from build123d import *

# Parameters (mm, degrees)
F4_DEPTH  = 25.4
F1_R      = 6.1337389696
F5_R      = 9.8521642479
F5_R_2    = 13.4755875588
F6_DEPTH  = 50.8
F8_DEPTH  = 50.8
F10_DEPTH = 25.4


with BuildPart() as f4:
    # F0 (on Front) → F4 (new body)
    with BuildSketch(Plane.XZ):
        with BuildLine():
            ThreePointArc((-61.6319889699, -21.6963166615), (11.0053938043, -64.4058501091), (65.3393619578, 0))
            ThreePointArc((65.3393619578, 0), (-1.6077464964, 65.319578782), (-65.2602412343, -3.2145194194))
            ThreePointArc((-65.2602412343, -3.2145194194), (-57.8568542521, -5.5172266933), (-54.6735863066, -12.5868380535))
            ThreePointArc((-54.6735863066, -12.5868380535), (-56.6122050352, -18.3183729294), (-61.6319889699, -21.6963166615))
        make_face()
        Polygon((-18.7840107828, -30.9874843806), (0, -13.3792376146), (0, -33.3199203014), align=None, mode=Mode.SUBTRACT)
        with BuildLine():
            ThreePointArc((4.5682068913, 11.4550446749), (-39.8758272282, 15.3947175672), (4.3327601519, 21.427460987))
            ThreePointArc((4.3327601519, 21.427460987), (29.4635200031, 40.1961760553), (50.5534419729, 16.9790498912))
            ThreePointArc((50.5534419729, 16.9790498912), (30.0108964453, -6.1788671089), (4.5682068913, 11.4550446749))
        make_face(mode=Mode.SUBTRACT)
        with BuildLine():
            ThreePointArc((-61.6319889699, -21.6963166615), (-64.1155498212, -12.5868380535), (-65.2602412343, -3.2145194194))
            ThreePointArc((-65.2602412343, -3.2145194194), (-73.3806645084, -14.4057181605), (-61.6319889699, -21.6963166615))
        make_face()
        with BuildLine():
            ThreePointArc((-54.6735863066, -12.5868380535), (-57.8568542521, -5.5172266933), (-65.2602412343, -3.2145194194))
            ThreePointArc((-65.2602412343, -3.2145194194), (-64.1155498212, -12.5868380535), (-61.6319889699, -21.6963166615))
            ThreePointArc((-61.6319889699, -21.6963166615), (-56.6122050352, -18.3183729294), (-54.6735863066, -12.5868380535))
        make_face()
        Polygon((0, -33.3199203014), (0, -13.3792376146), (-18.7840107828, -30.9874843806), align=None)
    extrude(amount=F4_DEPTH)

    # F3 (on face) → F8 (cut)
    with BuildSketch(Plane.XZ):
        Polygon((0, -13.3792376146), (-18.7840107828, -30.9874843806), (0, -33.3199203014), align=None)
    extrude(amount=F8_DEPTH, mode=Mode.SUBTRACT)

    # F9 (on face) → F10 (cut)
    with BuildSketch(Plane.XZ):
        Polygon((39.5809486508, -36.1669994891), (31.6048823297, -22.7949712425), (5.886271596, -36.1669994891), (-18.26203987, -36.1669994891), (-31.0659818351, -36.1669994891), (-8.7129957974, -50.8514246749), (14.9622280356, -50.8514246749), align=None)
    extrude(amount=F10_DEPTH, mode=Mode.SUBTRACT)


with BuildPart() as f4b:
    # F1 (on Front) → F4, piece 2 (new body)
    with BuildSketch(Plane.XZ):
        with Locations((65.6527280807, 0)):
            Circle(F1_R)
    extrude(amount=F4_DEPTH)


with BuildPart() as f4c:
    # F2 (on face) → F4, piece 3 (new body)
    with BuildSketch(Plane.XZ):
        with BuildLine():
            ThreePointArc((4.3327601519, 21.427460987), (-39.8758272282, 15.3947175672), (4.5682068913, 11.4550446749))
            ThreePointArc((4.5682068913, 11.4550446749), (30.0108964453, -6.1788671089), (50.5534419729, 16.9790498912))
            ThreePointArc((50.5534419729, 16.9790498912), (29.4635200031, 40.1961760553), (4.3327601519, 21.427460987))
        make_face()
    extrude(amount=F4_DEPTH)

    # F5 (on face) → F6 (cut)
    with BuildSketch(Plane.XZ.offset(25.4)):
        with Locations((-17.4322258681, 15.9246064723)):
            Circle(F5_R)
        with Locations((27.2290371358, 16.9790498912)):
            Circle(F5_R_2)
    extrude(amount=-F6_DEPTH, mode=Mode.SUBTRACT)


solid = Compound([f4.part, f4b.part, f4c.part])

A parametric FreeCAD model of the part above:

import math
import FreeCAD as App
import Part
import Sketcher

V = App.Vector
Q = App.Units.Quantity

doc = App.newDocument("Part")
body = doc.addObject("PartDesign::Body", "Body")

sketch1 = body.newObject("Sketcher::SketchObject", "Sketch")
sketch1.AttachmentSupport = (doc.getObject("XZ_Plane"), [""])
sketch1.MapMode = "FlatFace"
sketch1.addGeometry([
    Part.ArcOfCircle(Part.Circle(V(0, 0, 0), V(0, 0, 1), 65), math.radians(-161), math.radians(183)),
    Part.ArcOfCircle(Part.Circle(V(-64, -13, 0), V(0, 0, 1), 9), math.radians(97), math.radians(285)),
    Part.ArcOfCircle(Part.Circle(V(27, 17, 0), V(0, 0, 1), 23), math.radians(-166), math.radians(169)),
    Part.ArcOfCircle(Part.Circle(V(-17, 16, 0), V(0, 0, 1), 22), math.radians(14), math.radians(349)),
], False)
sketch1.addConstraint([
    Sketcher.Constraint("Coincident", 0, 1, 1, 2),
    Sketcher.Constraint("Coincident", 1, 1, 0, 2),
    Sketcher.Constraint("Coincident", 2, 1, 3, 2),
    Sketcher.Constraint("Coincident", 3, 1, 2, 2),
    Sketcher.Constraint("Coincident", 0, 3, -1, 1),
    Sketcher.Constraint("Radius", 0, Q("65.339362 mm")),
    Sketcher.Constraint("Radius", 1, Q("9.441964 mm")),
    Sketcher.Constraint("Radius", 2, Q("23.324405 mm")),
    Sketcher.Constraint("Radius", 3, Q("22.449856 mm")),
    Sketcher.Constraint("DistanceX", 1, 1, 3, 1, Q("69.593001 mm")),
    Sketcher.Constraint("DistanceX", 1, 3, -1, 1, Q("64.11555 mm")),
    Sketcher.Constraint("DistanceY", 1, 3, -1, 1, Q("12.586838 mm")),
    Sketcher.Constraint("DistanceY", -1, 1, 2, 3, Q("16.97905 mm")),
    Sketcher.Constraint("DistanceY", -1, 1, 3, 1, Q("21.427461 mm")),
    Sketcher.Constraint("DistanceX", 2, 1, 2, 3, Q("22.66083 mm")),
])
pad1 = body.newObject("PartDesign::Pad", "Pad")
pad1.Profile = sketch1
pad1.Length = Q("1 in")

sketch2 = body.newObject("Sketcher::SketchObject", "Sketch001")
sketch2.AttachmentSupport = (doc.getObject("XZ_Plane"), [""])
sketch2.MapMode = "FlatFace"
sketch2.addGeometry([
    Part.LineSegment(V(0, -13, 0), V(-19, -31, 0)),
    Part.LineSegment(V(-19, -31, 0), V(0, -33, 0)),
    Part.LineSegment(V(0, -33, 0), V(0, -13, 0)),
], False)
sketch2.addConstraint([
    Sketcher.Constraint("Coincident", 0, 2, 1, 1),
    Sketcher.Constraint("Coincident", 1, 2, 2, 1),
    Sketcher.Constraint("Coincident", 2, 2, 0, 1),
    Sketcher.Constraint("Vertical", 2),
    Sketcher.Constraint("PointOnObject", 1, 2, -2),
    Sketcher.Constraint("Distance", 0, Q("25.746639 mm")),
    Sketcher.Constraint("DistanceY", 2, 1, 2, 2, Q("19.940683 mm")),
    Sketcher.Constraint("DistanceX", 0, 2, -1, 1, Q("18.784011 mm")),
    Sketcher.Constraint("DistanceY", 1, 2, -1, 1, Q("33.31992 mm")),
])
pocket1 = body.newObject("PartDesign::Pocket", "Pocket")
pocket1.Profile = sketch2
pocket1.Length = Q("2 in")
pocket1.Reversed = True

sketch3 = body.newObject("Sketcher::SketchObject", "Sketch002")
sketch3.AttachmentSupport = (doc.getObject("XZ_Plane"), [""])
sketch3.MapMode = "FlatFace"
sketch3.addGeometry([
    Part.LineSegment(V(40, -36, 0), V(32, -23, 0)),
    Part.LineSegment(V(32, -23, 0), V(6, -36, 0)),
    Part.LineSegment(V(6, -36, 0), V(-31, -36, 0)),
    Part.LineSegment(V(-31, -36, 0), V(-9, -51, 0)),
    Part.LineSegment(V(-9, -51, 0), V(15, -51, 0)),
    Part.LineSegment(V(15, -51, 0), V(40, -36, 0)),
], False)
sketch3.addConstraint([
    Sketcher.Constraint("Coincident", 0, 2, 1, 1),
    Sketcher.Constraint("Coincident", 1, 2, 2, 1),
    Sketcher.Constraint("Coincident", 2, 2, 3, 1),
    Sketcher.Constraint("Coincident", 3, 2, 4, 1),
    Sketcher.Constraint("Coincident", 4, 2, 5, 1),
    Sketcher.Constraint("Coincident", 5, 2, 0, 1),
    Sketcher.Constraint("Horizontal", 2),
    Sketcher.Constraint("Horizontal", 4),
    Sketcher.Constraint("Perpendicular", 0, 5),
    Sketcher.Constraint("Horizontal", 2, 2, 5, 2),
    Sketcher.Constraint("DistanceY", 1, 2, -1, 1, Q("36.166999 mm")),
    Sketcher.Constraint("Distance", 5, Q("28.66555 mm")),
    Sketcher.Constraint("DistanceX", 2, 2, 2, 1, Q("36.952253 mm")),
    Sketcher.Constraint("DistanceX", 4, 1, 4, 2, Q("23.675224 mm")),
    Sketcher.Constraint("DistanceY", 0, 2, -1, 1, Q("22.794971 mm")),
    Sketcher.Constraint("DistanceX", -1, 1, 1, 2, Q("5.886272 mm")),
    Sketcher.Constraint("DistanceX", -1, 1, 4, 2, Q("14.962228 mm")),
    Sketcher.Constraint("DistanceX", -1, 1, 5, 2, Q("39.580949 mm")),
])
pocket2 = body.newObject("PartDesign::Pocket", "Pocket001")
pocket2.Profile = sketch3
pocket2.Length = Q("1 in")
pocket2.Reversed = True
body2 = doc.addObject("PartDesign::Body", "Body001")

sketch4 = body2.newObject("Sketcher::SketchObject", "Sketch003")
sketch4.AttachmentSupport = (doc.getObject("XZ_Plane001"), [""])
sketch4.MapMode = "FlatFace"
sketch4.addGeometry(Part.Circle(V(66, 0, 0), V(0, 0, 1), 6), False)
sketch4.addConstraint([
    Sketcher.Constraint("PointOnObject", 0, 3, -1),
    Sketcher.Constraint("Diameter", 0, Q("12.267478 mm")),
    Sketcher.Constraint("DistanceX", -1, 1, 0, 3, Q("65.652728 mm")),
])
pad2 = body2.newObject("PartDesign::Pad", "Pad001")
pad2.Profile = sketch4
pad2.Length = Q("1 in")
body3 = doc.addObject("PartDesign::Body", "Body002")

sketch5 = body3.newObject("Sketcher::SketchObject", "Sketch004")
sketch5.AttachmentSupport = (doc.getObject("XZ_Plane002"), [""])
sketch5.MapMode = "FlatFace"
sketch5.addGeometry([
    Part.ArcOfCircle(Part.Circle(V(-17, 16, 0), V(0, 0, 1), 22), math.radians(14), math.radians(349)),
    Part.ArcOfCircle(Part.Circle(V(27, 17, 0), V(0, 0, 1), 23), math.radians(-166), math.radians(169)),
], False)
sketch5.addConstraint([
    Sketcher.Constraint("Coincident", 0, 1, 1, 2),
    Sketcher.Constraint("Coincident", 1, 1, 0, 2),
    Sketcher.Constraint("Radius", 0, Q("22.449856 mm")),
    Sketcher.Constraint("Radius", 1, Q("23.324405 mm")),
    Sketcher.Constraint("DistanceY", -1, 1, 1, 3, Q("16.97905 mm")),
    Sketcher.Constraint("DistanceX", -1, 1, 0, 1, Q("4.33276 mm")),
    Sketcher.Constraint("DistanceY", -1, 1, 0, 1, Q("21.427461 mm")),
    Sketcher.Constraint("DistanceX", 1, 1, 1, 3, Q("22.66083 mm")),
])
pad3 = body3.newObject("PartDesign::Pad", "Pad002")
pad3.Profile = sketch5
pad3.Length = Q("1 in")

sketch6 = body3.newObject("Sketcher::SketchObject", "Sketch005")
sketch6.AttachmentSupport = (doc.getObject("XZ_Plane002"), [""])
sketch6.MapMode = "FlatFace"
sketch6.AttachmentOffset = App.Placement(V(0, 0, 1 * 25.4), App.Rotation())
sketch6.addGeometry([
    Part.Circle(V(-17, 16, 0), V(0, 0, 1), 10),
    Part.Circle(V(27, 17, 0), V(0, 0, 1), 13),
], False)
sketch6.addConstraint([
    Sketcher.Constraint("Diameter", 0, Q("19.704328 mm")),
    Sketcher.Constraint("Diameter", 1, Q("26.951175 mm")),
    Sketcher.Constraint("DistanceY", -1, 1, 1, 3, Q("16.97905 mm")),
    Sketcher.Constraint("DistanceX", 0, 3, -1, 1, Q("17.432226 mm")),
    Sketcher.Constraint("DistanceY", -1, 1, 0, 3, Q("15.924606 mm")),
    Sketcher.Constraint("DistanceX", -1, 1, 1, 3, Q("27.229037 mm")),
])
pocket3 = body3.newObject("PartDesign::Pocket", "Pocket002")
pocket3.Profile = sketch6
pocket3.Length = Q("2 in")

doc.recompute()
